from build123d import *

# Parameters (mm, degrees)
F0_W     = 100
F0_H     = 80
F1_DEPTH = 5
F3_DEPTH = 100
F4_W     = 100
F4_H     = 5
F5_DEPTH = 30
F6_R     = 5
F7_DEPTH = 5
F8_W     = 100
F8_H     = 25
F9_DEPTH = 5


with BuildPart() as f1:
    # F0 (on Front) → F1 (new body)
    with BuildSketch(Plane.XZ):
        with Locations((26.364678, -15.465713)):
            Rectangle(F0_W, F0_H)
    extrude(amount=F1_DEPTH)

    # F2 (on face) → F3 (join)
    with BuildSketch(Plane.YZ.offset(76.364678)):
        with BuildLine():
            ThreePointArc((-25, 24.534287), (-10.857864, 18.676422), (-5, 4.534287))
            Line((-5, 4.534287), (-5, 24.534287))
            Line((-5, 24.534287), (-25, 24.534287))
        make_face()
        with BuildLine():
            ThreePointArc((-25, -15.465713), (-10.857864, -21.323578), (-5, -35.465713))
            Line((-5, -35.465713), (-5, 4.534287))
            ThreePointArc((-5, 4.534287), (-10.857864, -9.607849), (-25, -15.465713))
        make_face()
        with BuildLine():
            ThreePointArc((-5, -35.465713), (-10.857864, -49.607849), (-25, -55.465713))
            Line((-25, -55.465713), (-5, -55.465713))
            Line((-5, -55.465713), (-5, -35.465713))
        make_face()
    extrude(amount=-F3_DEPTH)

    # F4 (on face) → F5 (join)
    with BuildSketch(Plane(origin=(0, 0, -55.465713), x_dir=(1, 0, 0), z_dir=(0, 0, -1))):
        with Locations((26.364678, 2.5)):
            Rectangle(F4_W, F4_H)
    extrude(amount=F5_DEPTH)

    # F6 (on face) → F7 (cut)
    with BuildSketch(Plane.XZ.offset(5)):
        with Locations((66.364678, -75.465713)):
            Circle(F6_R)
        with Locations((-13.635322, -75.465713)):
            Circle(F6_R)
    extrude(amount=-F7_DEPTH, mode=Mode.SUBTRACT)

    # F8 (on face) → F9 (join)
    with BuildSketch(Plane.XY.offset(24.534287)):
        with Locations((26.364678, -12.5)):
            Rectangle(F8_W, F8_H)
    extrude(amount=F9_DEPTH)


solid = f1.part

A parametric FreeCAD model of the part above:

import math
import FreeCAD as App
import Part
import Sketcher
Q = App.Units.Quantity


def add_polygon(sketch, points):
    """Adds a closed chain of lines whose ends are joined by coincident constraints."""
    first, n = sketch.GeometryCount, len(points)
    for a, b in zip(points, points[1:] + points[:1]):
        sketch.addGeometry(Part.LineSegment(App.Vector(*a, 0), App.Vector(*b, 0)), False)
    for i in range(n):
        sketch.addConstraint(Sketcher.Constraint("Coincident", first + i, 2, first + (i + 1) % n, 1))

doc = App.newDocument("Part")
body = doc.addObject("PartDesign::Body", "Body")

# Sketch on XZ plane
sketch1 = body.newObject("Sketcher::SketchObject", "Sketch")
sketch1.AttachmentSupport = (doc.getObject("XZ_Plane"), [""])
sketch1.MapMode = "FlatFace"
add_polygon(sketch1, [(-24, 25), (-24, -55), (76, -55), (76, 25)])  # lines 0-3
sketch1.addConstraint([
    Sketcher.Constraint("Vertical", 0),
    Sketcher.Constraint("Horizontal", 1),
    Sketcher.Constraint("Vertical", 2),
    Sketcher.Constraint("Horizontal", 3),
    Sketcher.Constraint("DistanceX", 1, 1, 1, 2, Q("100 mm")),
    Sketcher.Constraint("DistanceY", 0, 2, 0, 1, Q("80 mm")),
    Sketcher.Constraint("DistanceX", 0, 2, -1, 1, Q("23.635322 mm")),
    Sketcher.Constraint("DistanceY", 0, 2, -1, 1, Q("55.465713 mm")),
])
pad1 = body.newObject("PartDesign::Pad", "Pad")
pad1.Profile = sketch1
pad1.Length = 5

# Sketch on YZ plane
sketch2 = body.newObject("Sketcher::SketchObject", "Sketch001")
sketch2.AttachmentSupport = (doc.getObject("YZ_Plane"), [""])
sketch2.MapMode = "FlatFace"
sketch2.AttachmentOffset = App.Placement(App.Vector(0, 0, 76.364678), App.Rotation())
sketch2.addGeometry([
    Part.ArcOfCircle(Part.Circle(App.Vector(-25, 5, 0), App.Vector(0, 0, 1), 20), math.radians(0), math.radians(90)),  # 0
    Part.LineSegment(App.Vector(-5, 5, 0), App.Vector(-5, 25, 0)),  # 1
    Part.LineSegment(App.Vector(-5, 25, 0), App.Vector(-25, 25, 0)),  # 2
    Part.ArcOfCircle(Part.Circle(App.Vector(-25, -35, 0), App.Vector(0, 0, 1), 20), math.radians(0), math.radians(90)),  # 3
    Part.LineSegment(App.Vector(-5, -35, 0), App.Vector(-5, 5, 0)),  # 4
    Part.ArcOfCircle(Part.Circle(App.Vector(-25, 5, 0), App.Vector(0, 0, 1), 20), math.radians(-90), math.radians(0)),  # 5
    Part.ArcOfCircle(Part.Circle(App.Vector(-25, -35, 0), App.Vector(0, 0, 1), 20), math.radians(-90), math.radians(0)),  # 6
    Part.LineSegment(App.Vector(-25, -55, 0), App.Vector(-5, -55, 0)),  # 7
    Part.LineSegment(App.Vector(-5, -55, 0), App.Vector(-5, -35, 0)),  # 8
], False)
sketch2.addConstraint([
    Sketcher.Constraint("Tangent", 0, 1, 1, 1),
    Sketcher.Constraint("Coincident", 1, 2, 2, 1),
    Sketcher.Constraint("Tangent", 2, 2, 0, 2),
    Sketcher.Constraint("Tangent", 3, 1, 4, 1),
    Sketcher.Constraint("Tangent", 4, 2, 5, 2),
    Sketcher.Constraint("Tangent", 5, 1, 3, 2),
    Sketcher.Constraint("Tangent", 6, 1, 7, 1),
    Sketcher.Constraint("Coincident", 7, 2, 8, 1),
    Sketcher.Constraint("Tangent", 8, 2, 6, 2),
    Sketcher.Constraint("Vertical", 1),
    Sketcher.Constraint("Horizontal", 2),
    Sketcher.Constraint("Vertical", 4),
    Sketcher.Constraint("Horizontal", 7),
    Sketcher.Constraint("Vertical", 8),
    Sketcher.Constraint("Coincident", 5, 3, 0, 3),
    Sketcher.Constraint("Coincident", 6, 3, 3, 3),
    Sketcher.Constraint("Equal", 0, 3),
    Sketcher.Constraint("Equal", 3, 5),
    Sketcher.Constraint("Equal", 5, 6),
    Sketcher.Constraint("Radius", 0, Q("20 mm")),
    Sketcher.Constraint("DistanceX", 0, 3, -1, 1, Q("25 mm")),
    Sketcher.Constraint("DistanceY", -1, 1, 0, 3, Q("4.534287 mm")),
])
pad2 = body.newObject("PartDesign::Pad", "Pad001")
pad2.Profile = sketch2
pad2.Length = 100
pad2.Reversed = True

# Sketch on XY plane
sketch3 = body.newObject("Sketcher::SketchObject", "Sketch002")
sketch3.AttachmentSupport = (doc.getObject("XY_Plane"), [""])
sketch3.MapMode = "FlatFace"
sketch3.AttachmentOffset = App.Placement(App.Vector(0, 0, -55.465713), App.Rotation())
add_polygon(sketch3, [(-24, -5), (-24, 0), (76, 0), (76, -5)])  # lines 0-3
sketch3.addConstraint([
    Sketcher.Constraint("Vertical", 0),
    Sketcher.Constraint("Horizontal", 1),
    Sketcher.Constraint("Vertical", 2),
    Sketcher.Constraint("Horizontal", 3),
    Sketcher.Constraint("PointOnObject", 0, 2, -1),
    Sketcher.Constraint("DistanceX", 1, 1, 1, 2, Q("100 mm")),
    Sketcher.Constraint("DistanceY", 0, 1, 0, 2, Q("5 mm")),
    Sketcher.Constraint("DistanceX", 0, 2, -1, 1, Q("23.635322 mm")),
])
pad3 = body.newObject("PartDesign::Pad", "Pad002")
pad3.Profile = sketch3
pad3.Length = 30
pad3.Reversed = True

# Sketch on XZ plane
sketch4 = body.newObject("Sketcher::SketchObject", "Sketch003")
sketch4.AttachmentSupport = (doc.getObject("XZ_Plane"), [""])
sketch4.MapMode = "FlatFace"
sketch4.AttachmentOffset = App.Placement(App.Vector(0, 0, 5), App.Rotation())
sketch4.addGeometry([
    Part.Circle(App.Vector(66, -75, 0), App.Vector(0, 0, 1), 5),
    Part.Circle(App.Vector(-14, -75, 0), App.Vector(0, 0, 1), 5),
], False)
sketch4.addConstraint([
    Sketcher.Constraint("Equal", 0, 1),
    Sketcher.Constraint("Horizontal", 0, 3, 1, 3),
    Sketcher.Constraint("Diameter", 0, Q("10 mm")),
    Sketcher.Constraint("DistanceX", 1, 3, 0, 3, Q("80 mm")),
    Sketcher.Constraint("DistanceX", -1, 1, 0, 3, Q("66.364678 mm")),
    Sketcher.Constraint("DistanceY", 0, 3, -1, 1, Q("75.465713 mm")),
])
pocket1 = body.newObject("PartDesign::Pocket", "Pocket")
pocket1.Profile = sketch4
pocket1.Length = 5

# Sketch on XY plane
sketch5 = body.newObject("Sketcher::SketchObject", "Sketch004")
sketch5.AttachmentSupport = (doc.getObject("XY_Plane"), [""])
sketch5.MapMode = "FlatFace"
sketch5.AttachmentOffset = App.Placement(App.Vector(0, 0, 24.534287), App.Rotation())
add_polygon(sketch5, [(-24, 0), (-24, -25), (76, -25), (76, 0)])  # lines 0-3
sketch5.addConstraint([
    Sketcher.Constraint("Vertical", 0),
    Sketcher.Constraint("Horizontal", 1),
    Sketcher.Constraint("Vertical", 2),
    Sketcher.Constraint("Horizontal", 3),
    Sketcher.Constraint("PointOnObject", 2, 2, -1),
    Sketcher.Constraint("DistanceX", 1, 1, 1, 2, Q("100 mm")),
    Sketcher.Constraint("DistanceY", 0, 2, 0, 1, Q("25 mm")),
    Sketcher.Constraint("DistanceX", 0, 2, -1, 1, Q("23.635322 mm")),
])
pad4 = body.newObject("PartDesign::Pad", "Pad003")
pad4.Profile = sketch5
pad4.Length = 5

doc.recompute()
